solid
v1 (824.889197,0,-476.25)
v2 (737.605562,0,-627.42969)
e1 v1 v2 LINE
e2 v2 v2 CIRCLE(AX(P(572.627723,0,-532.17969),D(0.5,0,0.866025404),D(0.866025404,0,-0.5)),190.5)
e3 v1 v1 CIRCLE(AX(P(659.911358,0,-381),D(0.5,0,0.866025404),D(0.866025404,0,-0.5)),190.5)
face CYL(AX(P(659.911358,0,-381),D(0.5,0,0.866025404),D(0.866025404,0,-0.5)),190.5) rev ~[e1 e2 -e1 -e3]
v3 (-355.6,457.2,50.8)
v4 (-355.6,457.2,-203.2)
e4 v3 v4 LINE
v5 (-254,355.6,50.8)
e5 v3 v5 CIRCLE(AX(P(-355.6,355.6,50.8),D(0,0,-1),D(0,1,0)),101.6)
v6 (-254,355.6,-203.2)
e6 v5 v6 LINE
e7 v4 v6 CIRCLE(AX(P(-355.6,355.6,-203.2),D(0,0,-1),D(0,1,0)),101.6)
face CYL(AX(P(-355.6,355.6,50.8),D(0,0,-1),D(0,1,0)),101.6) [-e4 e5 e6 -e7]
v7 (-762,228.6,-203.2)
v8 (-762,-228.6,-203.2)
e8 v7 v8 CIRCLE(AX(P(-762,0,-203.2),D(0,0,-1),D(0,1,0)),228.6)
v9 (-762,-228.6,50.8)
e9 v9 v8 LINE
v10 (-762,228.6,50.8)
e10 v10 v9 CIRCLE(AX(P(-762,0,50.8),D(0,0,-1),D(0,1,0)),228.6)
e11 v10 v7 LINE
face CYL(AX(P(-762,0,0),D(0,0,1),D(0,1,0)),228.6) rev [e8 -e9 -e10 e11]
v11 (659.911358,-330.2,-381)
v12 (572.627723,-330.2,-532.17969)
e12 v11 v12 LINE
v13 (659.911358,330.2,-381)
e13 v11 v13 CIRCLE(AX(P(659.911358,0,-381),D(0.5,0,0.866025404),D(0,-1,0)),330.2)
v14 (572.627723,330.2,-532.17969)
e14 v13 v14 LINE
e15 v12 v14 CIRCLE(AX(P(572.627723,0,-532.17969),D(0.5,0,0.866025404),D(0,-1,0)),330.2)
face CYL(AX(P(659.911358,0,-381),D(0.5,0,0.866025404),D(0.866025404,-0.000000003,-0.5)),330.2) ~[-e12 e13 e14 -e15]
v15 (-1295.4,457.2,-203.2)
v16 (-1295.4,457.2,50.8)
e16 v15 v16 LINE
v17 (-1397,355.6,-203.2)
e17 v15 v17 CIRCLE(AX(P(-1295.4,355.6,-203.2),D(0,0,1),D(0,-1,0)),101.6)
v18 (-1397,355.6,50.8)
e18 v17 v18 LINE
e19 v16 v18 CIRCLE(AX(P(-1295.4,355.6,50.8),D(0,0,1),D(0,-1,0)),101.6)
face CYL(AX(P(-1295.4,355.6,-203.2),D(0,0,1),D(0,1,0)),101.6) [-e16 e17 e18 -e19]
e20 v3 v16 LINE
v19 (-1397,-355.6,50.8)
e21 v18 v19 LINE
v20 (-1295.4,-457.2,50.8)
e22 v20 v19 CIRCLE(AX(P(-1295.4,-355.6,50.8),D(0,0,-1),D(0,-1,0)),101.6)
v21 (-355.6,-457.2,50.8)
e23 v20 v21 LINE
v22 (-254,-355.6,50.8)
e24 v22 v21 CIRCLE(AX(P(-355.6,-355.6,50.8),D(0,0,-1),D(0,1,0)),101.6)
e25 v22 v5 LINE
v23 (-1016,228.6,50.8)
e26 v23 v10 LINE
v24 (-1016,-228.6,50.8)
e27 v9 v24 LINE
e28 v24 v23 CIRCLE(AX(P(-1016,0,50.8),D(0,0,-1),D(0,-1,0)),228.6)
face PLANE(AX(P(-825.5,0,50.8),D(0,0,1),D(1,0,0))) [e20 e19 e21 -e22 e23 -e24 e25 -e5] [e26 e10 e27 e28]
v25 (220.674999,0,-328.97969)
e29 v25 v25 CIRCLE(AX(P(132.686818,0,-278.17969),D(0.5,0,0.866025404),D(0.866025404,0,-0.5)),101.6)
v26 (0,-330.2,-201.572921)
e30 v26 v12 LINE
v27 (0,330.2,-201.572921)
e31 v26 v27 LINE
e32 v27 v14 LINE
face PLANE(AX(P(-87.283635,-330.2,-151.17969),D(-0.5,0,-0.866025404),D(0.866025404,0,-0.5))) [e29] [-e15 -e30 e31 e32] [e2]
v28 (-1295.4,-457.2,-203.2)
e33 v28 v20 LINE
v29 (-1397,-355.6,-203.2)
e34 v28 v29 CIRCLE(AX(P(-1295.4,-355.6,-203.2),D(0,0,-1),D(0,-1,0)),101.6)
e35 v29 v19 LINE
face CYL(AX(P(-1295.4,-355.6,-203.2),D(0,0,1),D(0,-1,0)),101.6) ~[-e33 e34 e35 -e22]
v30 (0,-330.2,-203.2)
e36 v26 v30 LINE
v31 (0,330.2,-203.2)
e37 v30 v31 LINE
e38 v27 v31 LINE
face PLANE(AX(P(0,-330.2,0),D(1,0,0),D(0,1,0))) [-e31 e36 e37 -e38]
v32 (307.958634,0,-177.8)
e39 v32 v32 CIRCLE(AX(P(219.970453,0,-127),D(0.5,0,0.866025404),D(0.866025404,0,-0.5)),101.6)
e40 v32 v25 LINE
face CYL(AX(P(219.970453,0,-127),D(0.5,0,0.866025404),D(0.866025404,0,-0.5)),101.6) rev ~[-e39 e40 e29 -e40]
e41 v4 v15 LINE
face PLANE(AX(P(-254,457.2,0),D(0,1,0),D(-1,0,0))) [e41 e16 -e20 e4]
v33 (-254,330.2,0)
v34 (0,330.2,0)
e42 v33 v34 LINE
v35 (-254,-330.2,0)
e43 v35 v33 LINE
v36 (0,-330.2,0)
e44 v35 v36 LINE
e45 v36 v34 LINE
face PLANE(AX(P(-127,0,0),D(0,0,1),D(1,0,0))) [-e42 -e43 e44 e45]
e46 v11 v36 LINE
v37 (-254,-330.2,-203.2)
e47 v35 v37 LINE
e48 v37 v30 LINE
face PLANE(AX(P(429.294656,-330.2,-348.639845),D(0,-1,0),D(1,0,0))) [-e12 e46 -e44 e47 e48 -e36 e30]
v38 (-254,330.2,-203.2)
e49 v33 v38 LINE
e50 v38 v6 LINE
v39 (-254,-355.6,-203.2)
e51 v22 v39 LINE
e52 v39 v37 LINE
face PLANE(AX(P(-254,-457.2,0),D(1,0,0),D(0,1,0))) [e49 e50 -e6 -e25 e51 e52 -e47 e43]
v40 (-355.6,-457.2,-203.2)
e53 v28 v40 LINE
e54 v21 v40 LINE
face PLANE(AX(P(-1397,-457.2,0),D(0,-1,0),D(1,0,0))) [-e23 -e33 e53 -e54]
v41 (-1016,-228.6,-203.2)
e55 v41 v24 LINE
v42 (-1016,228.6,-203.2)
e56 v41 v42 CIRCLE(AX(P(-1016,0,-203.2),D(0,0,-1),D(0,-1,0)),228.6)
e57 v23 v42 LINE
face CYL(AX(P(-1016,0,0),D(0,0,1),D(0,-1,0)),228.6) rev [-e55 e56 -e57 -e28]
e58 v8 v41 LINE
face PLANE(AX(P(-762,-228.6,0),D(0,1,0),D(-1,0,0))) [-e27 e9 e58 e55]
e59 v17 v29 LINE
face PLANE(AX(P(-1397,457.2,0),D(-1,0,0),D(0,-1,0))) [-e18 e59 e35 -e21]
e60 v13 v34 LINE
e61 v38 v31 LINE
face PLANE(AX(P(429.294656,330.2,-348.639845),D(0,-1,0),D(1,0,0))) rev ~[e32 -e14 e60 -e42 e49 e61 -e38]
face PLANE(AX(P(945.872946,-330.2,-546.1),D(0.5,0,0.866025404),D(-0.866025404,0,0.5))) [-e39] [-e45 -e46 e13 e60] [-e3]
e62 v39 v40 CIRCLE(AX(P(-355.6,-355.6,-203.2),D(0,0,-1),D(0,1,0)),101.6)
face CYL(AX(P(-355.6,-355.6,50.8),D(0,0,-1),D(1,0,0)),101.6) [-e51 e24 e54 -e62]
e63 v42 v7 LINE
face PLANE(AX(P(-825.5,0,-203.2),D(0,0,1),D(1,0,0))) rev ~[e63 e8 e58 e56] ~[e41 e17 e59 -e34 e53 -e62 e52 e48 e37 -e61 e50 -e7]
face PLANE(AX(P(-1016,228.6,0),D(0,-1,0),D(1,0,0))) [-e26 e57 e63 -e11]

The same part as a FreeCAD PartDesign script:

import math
import FreeCAD as App
import Part
import Sketcher
Q = App.Units.Quantity


def edges_at(feature, points):
    """Names of the edges that pass closest to the given points."""
    edges = feature.Shape.Edges
    near = lambda p: min(range(len(edges)), key=lambda i: edges[i].distToShape(Part.Vertex(*p))[0])
    return sorted({f"Edge{near(p) + 1}" for p in points})


def add_polygon(sketch, points):
    """Adds a closed chain of lines whose ends are joined by coincident constraints."""
    first, n = sketch.GeometryCount, len(points)
    for a, b in zip(points, points[1:] + points[:1]):
        sketch.addGeometry(Part.LineSegment(App.Vector(*a, 0), App.Vector(*b, 0)), False)
    for i in range(n):
        sketch.addConstraint(Sketcher.Constraint("Coincident", first + i, 2, first + (i + 1) % n, 1))

doc = App.newDocument("Part")
body = doc.addObject("PartDesign::Body", "Body")

# Sketch on XY plane
sketch1 = body.newObject("Sketcher::SketchObject", "Sketch")
sketch1.AttachmentSupport = (doc.getObject("XY_Plane"), [""])
sketch1.MapMode = "FlatFace"
add_polygon(sketch1, [(-254, 330), (-254, -330), (0, -330), (0, 330)])  # lines 0-3
sketch1.addConstraint([
    Sketcher.Constraint("Vertical", 0),
    Sketcher.Constraint("Horizontal", 1),
    Sketcher.Constraint("Vertical", 2),
    Sketcher.Constraint("Horizontal", 3),
    Sketcher.Constraint("Symmetric", 1, 2, 2, 2, -1, 1),
    Sketcher.Constraint("DistanceX", 1, 1, 1, 2, Q("10 in")),
    Sketcher.Constraint("DistanceY", 0, 2, 0, 1, Q("26 in")),
])
pad1 = body.newObject("PartDesign::Pad", "Pad")
pad1.Profile = sketch1
pad1.Length = Q("8 in")
pad1.Reversed = True

# Sketch on XY plane
sketch2 = body.newObject("Sketcher::SketchObject", "Sketch001")
sketch2.AttachmentSupport = (doc.getObject("XY_Plane"), [""])
sketch2.MapMode = "FlatFace"
add_polygon(sketch2, [(-254, 457), (-1397, 457), (-1397, -457), (-254, -457)])  # lines 0-3
sketch2.addGeometry(Part.LineSegment(App.Vector(-762, -229, 0), App.Vector(-1016, -229, 0)), False)  # 4
sketch2.addGeometry(Part.ArcOfCircle(Part.Circle(App.Vector(-1016, 0, 0), App.Vector(0, 0, 1), 229), math.radians(90), math.radians(270)), False)  # 5
sketch2.addGeometry(Part.LineSegment(App.Vector(-1016, 229, 0), App.Vector(-762, 229, 0)), False)  # 6
sketch2.addGeometry(Part.ArcOfCircle(Part.Circle(App.Vector(-762, 0, 0), App.Vector(0, 0, 1), 229), math.radians(-90), math.radians(90)), False)  # 7
sketch2.addConstraint([
    Sketcher.Constraint("Tangent", 4, 2, 5, 2),
    Sketcher.Constraint("Tangent", 5, 1, 6, 1),
    Sketcher.Constraint("Tangent", 6, 2, 7, 2),
    Sketcher.Constraint("Tangent", 7, 1, 4, 1),
    Sketcher.Constraint("Horizontal", 0),
    Sketcher.Constraint("Vertical", 1),
    Sketcher.Constraint("Horizontal", 2),
    Sketcher.Constraint("Vertical", 3),
    Sketcher.Constraint("Horizontal", 4),
    Sketcher.Constraint("Horizontal", 6),
    Sketcher.Constraint("PointOnObject", 5, 3, -1),
    Sketcher.Constraint("Radius", 5, Q("9 in")),
    Sketcher.Constraint("DistanceX", 0, 2, 0, 1, Q("45 in")),
    Sketcher.Constraint("DistanceX", 4, 2, 4, 1, Q("10 in")),
    Sketcher.Constraint("DistanceY", 1, 2, 1, 1, Q("36 in")),
    Sketcher.Constraint("DistanceX", 5, 3, -1, 1, Q("40 in")),
    Sketcher.Constraint("DistanceX", 0, 2, -1, 1, Q("55 in")),
    Sketcher.Constraint("DistanceY", -1, 1, 0, 2, Q("18 in")),
])
pad2 = body.newObject("PartDesign::Pad", "Pad001")
pad2.Profile = sketch2
pad2.Type = "TwoLengths"
pad2.Length = Q("2 in")
pad2.Length2 = Q("8 in")
doc.recompute()

fillet = body.newObject("PartDesign::Fillet", "Fillet")
fillet.Base = (pad2, edges_at(pad2, [
    (-254, -457.2, -76.2),
    (-254, 457.2, -76.2),
    (-1397, 457.2, -76.2),
    (-1397, -457.2, -76.2),
]))
fillet.Radius = Q("4 in")

# Sketch on XZ plane
sketch3 = body.newObject("Sketcher::SketchObject", "Sketch002")
sketch3.AttachmentSupport = (doc.getObject("XZ_Plane"), [""])
sketch3.MapMode = "FlatFace"
sketch3.AttachmentOffset = App.Placement(App.Vector(0, 0, 13 * 25.4), App.Rotation())
add_polygon(sketch3, [(946, -546), (0, 0), (-87, -151), (859, -697)])  # lines 0-3
sketch3.addConstraint([
    Sketcher.Constraint("Coincident", 0, 2, -1, 1),
    Sketcher.Constraint("Perpendicular", 0, 1),
    Sketcher.Constraint("Perpendicular", 1, 2),
    Sketcher.Constraint("Perpendicular", 2, 3),
    Sketcher.Constraint("Distance", 0, Q("43 in")),
    Sketcher.Constraint("Angle", 0, Q("150 deg")),
    Sketcher.Constraint("Distance", 1, 174.56727),
])
pad3 = body.newObject("PartDesign::Pad", "Pad002")
pad3.Profile = sketch3
pad3.Length = Q("26 in")
pad3.Reversed = True

# Sketch on an angled plane
sketch4 = body.newObject("Sketcher::SketchObject", "Sketch003")
sketch4.Placement = App.Placement(App.Vector(0, 0, 0), App.Rotation(App.Vector(0.866025404, 0, -0.5), App.Vector(0, 1, 0), App.Vector(0.5, 0, 0.866025404), "ZXY"))
sketch4.addGeometry([
    Part.ArcOfCircle(Part.Circle(App.Vector(762, 0, 0), App.Vector(0, 0, 1), 330), math.radians(-90), math.radians(0)),  # 0
    Part.LineSegment(App.Vector(762, -330, 0), App.Vector(1092, -330, 0)),  # 1
    Part.LineSegment(App.Vector(1092, -330, 0), App.Vector(1092, 0, 0)),  # 2
    Part.ArcOfCircle(Part.Circle(App.Vector(762, 0, 0), App.Vector(0, 0, 1), 330), math.radians(0), math.radians(90)),  # 3
    Part.LineSegment(App.Vector(1092, 0, 0), App.Vector(1092, 330, 0)),  # 4
    Part.LineSegment(App.Vector(1092, 330, 0), App.Vector(762, 330, 0)),  # 5
], False)
sketch4.addConstraint([
    Sketcher.Constraint("Tangent", 0, 1, 1, 1),
    Sketcher.Constraint("Coincident", 1, 2, 2, 1),
    Sketcher.Constraint("Tangent", 2, 2, 0, 2),
    Sketcher.Constraint("Tangent", 3, 1, 4, 1),
    Sketcher.Constraint("Coincident", 4, 2, 5, 1),
    Sketcher.Constraint("Tangent", 5, 2, 3, 2),
    Sketcher.Constraint("Horizontal", 1),
    Sketcher.Constraint("Vertical", 2),
    Sketcher.Constraint("Vertical", 4),
    Sketcher.Constraint("Horizontal", 5),
    Sketcher.Constraint("Coincident", 3, 3, 0, 3),
    Sketcher.Constraint("Equal", 0, 3),
    Sketcher.Constraint("PointOnObject", 0, 3, -1),
    Sketcher.Constraint("Radius", 0, Q("13 in")),
    Sketcher.Constraint("DistanceX", -1, 1, 0, 3, Q("30 in")),
])
pocket1 = body.newObject("PartDesign::Pocket", "Pocket")
pocket1.Profile = sketch4
pocket1.Type = "ThroughAll"

# Sketch on an angled plane
sketch5 = body.newObject("Sketcher::SketchObject", "Sketch004")
sketch5.Placement = App.Placement(App.Vector(0, 0, 0), App.Rotation(App.Vector(0.866025404, 0, -0.5), App.Vector(0, 1, 0), App.Vector(0.5, 0, 0.866025404), "ZXY"))
sketch5.addGeometry([
    Part.Circle(App.Vector(762, 0, 0), App.Vector(0, 0, 1), 190),
    Part.Circle(App.Vector(254, 0, 0), App.Vector(0, 0, 1), 102),
], False)
sketch5.addConstraint([
    Sketcher.Constraint("PointOnObject", 0, 3, -1),
    Sketcher.Constraint("PointOnObject", 1, 3, -1),
    Sketcher.Constraint("Diameter", 0, Q("15 in")),
    Sketcher.Constraint("Diameter", 1, Q("8 in")),
    Sketcher.Constraint("DistanceX", -1, 1, 0, 3, Q("30 in")),
    Sketcher.Constraint("DistanceX", -1, 1, 1, 3, Q("10 in")),
])
pocket2 = body.newObject("PartDesign::Pocket", "Pocket001")
pocket2.Profile = sketch5
pocket2.Type = "ThroughAll"

doc.recompute()
